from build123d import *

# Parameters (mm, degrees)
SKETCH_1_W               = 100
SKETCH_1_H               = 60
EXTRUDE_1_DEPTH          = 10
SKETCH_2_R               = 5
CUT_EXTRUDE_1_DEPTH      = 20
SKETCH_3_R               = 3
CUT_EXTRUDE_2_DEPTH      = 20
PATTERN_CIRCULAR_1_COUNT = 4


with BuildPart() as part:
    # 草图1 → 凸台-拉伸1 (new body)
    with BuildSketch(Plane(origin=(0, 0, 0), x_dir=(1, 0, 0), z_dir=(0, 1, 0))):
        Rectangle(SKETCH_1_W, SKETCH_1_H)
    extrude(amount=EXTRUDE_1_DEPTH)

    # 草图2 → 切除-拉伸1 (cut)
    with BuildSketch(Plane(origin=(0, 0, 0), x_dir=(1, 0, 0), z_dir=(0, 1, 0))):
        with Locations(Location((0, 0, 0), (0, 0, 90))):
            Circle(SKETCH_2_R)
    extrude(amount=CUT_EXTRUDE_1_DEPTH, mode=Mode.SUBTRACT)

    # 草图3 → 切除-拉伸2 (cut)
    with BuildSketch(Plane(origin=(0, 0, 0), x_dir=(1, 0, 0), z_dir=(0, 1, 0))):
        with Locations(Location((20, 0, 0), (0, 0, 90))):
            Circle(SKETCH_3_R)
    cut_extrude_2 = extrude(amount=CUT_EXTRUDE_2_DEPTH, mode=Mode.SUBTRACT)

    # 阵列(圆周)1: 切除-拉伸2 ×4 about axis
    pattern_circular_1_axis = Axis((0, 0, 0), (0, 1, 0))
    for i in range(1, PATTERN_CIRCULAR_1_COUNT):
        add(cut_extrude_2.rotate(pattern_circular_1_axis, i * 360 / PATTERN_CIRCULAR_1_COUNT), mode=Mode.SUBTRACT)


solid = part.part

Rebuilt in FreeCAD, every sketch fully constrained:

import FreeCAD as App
import Part
import Sketcher
from FreeCAD import Vector


def add_polygon(sketch, points):
    """Adds a closed chain of lines whose ends are joined by coincident constraints."""
    first, n = sketch.GeometryCount, len(points)
    for a, b in zip(points, points[1:] + points[:1]):
        sketch.addGeometry(Part.LineSegment(App.Vector(*a, 0), App.Vector(*b, 0)), False)
    for i in range(n):
        sketch.addConstraint(Sketcher.Constraint("Coincident", first + i, 2, first + (i + 1) % n, 1))

doc = App.newDocument("Part")
params = doc.addObject("Spreadsheet::Sheet", "Params")
for row, (alias, value) in enumerate([
    ("sketch1_width", "100 mm"),
    ("sketch1_height", "60 mm"),
    ("pad1_length", "10 mm"),
    ("sketch2_diameter", "10 mm"),
    ("pocket1_length", "20 mm"),
    ("sketch3_diameter", "6 mm"),
    ("pocket2_length", "20 mm"),
], start=1):
    params.set(f"A{row}", alias)
    params.set(f"B{row}", "=" + value)
    params.setAlias(f"B{row}", alias)

body = doc.addObject("PartDesign::Body", "Body")

# Sketch on XZ plane
sketch1 = body.newObject("Sketcher::SketchObject", "Sketch")
sketch1.AttachmentSupport = (doc.getObject("XZ_Plane"), [""])
sketch1.MapMode = "FlatFace"
add_polygon(sketch1, [(-50, -30), (-50, 30), (50, 30), (50, -30)])  # lines 0-3
sketch1.addConstraint(Sketcher.Constraint("Vertical", 0))
sketch1.addConstraint(Sketcher.Constraint("Horizontal", 1))
sketch1.addConstraint(Sketcher.Constraint("Vertical", 2))
sketch1.addConstraint(Sketcher.Constraint("Horizontal", 3))
sketch1.addConstraint(Sketcher.Constraint("Symmetric", 0, 2, 2, 2, -1, 1))
sketch1.addConstraint(Sketcher.Constraint("DistanceX", 1, 1, 1, 2, 100.0))
sketch1.addConstraint(Sketcher.Constraint("DistanceY", 0, 1, 0, 2, 60.0))
sketch1.setExpression("Constraints[9]", "Params.sketch1_width")
sketch1.setExpression("Constraints[10]", "Params.sketch1_height")
pad1 = body.newObject("PartDesign::Pad", "Pad")
pad1.Profile = sketch1
pad1.setExpression("Length", "Params.pad1_length")
pad1.Reversed = True

# Sketch on XZ plane
sketch2 = body.newObject("Sketcher::SketchObject", "Sketch001")
sketch2.AttachmentSupport = (doc.getObject("XZ_Plane"), [""])
sketch2.MapMode = "FlatFace"
sketch2.addGeometry(Part.Circle(Vector(0, 0, 0), Vector(0, 0, 1), 5), False)
sketch2.addConstraint(Sketcher.Constraint("Coincident", 0, 3, -1, 1))
sketch2.addConstraint(Sketcher.Constraint("Diameter", 0, 10.0))
sketch2.setExpression("Constraints[1]", "Params.sketch2_diameter")
pocket1 = body.newObject("PartDesign::Pocket", "Pocket")
pocket1.Profile = sketch2
pocket1.setExpression("Length", "Params.pocket1_length")

# Sketch on XZ plane
sketch3 = body.newObject("Sketcher::SketchObject", "Sketch002")
sketch3.AttachmentSupport = (doc.getObject("XZ_Plane"), [""])
sketch3.MapMode = "FlatFace"
sketch3.addGeometry(Part.Circle(Vector(20, 0, 0), Vector(0, 0, 1), 3), False)
sketch3.addConstraint(Sketcher.Constraint("PointOnObject", 0, 3, -1))
sketch3.addConstraint(Sketcher.Constraint("Diameter", 0, 6.0))
sketch3.addConstraint(Sketcher.Constraint("DistanceX", -1, 1, 0, 3, 20.0))
sketch3.setExpression("Constraints[1]", "Params.sketch3_diameter")
pocket2 = body.newObject("PartDesign::Pocket", "Pocket001")
pocket2.Profile = sketch3
pocket2.setExpression("Length", "Params.pocket2_length")
doc.recompute()

polarpattern = body.newObject("PartDesign::PolarPattern", "PolarPattern")
polarpattern.Originals = [pocket2]
polarpattern.Axis = (doc.getObject("Y_Axis"), [""])
polarpattern.Angle = 360
polarpattern.Occurrences = 4
body.Tip = polarpattern

doc.recompute()
